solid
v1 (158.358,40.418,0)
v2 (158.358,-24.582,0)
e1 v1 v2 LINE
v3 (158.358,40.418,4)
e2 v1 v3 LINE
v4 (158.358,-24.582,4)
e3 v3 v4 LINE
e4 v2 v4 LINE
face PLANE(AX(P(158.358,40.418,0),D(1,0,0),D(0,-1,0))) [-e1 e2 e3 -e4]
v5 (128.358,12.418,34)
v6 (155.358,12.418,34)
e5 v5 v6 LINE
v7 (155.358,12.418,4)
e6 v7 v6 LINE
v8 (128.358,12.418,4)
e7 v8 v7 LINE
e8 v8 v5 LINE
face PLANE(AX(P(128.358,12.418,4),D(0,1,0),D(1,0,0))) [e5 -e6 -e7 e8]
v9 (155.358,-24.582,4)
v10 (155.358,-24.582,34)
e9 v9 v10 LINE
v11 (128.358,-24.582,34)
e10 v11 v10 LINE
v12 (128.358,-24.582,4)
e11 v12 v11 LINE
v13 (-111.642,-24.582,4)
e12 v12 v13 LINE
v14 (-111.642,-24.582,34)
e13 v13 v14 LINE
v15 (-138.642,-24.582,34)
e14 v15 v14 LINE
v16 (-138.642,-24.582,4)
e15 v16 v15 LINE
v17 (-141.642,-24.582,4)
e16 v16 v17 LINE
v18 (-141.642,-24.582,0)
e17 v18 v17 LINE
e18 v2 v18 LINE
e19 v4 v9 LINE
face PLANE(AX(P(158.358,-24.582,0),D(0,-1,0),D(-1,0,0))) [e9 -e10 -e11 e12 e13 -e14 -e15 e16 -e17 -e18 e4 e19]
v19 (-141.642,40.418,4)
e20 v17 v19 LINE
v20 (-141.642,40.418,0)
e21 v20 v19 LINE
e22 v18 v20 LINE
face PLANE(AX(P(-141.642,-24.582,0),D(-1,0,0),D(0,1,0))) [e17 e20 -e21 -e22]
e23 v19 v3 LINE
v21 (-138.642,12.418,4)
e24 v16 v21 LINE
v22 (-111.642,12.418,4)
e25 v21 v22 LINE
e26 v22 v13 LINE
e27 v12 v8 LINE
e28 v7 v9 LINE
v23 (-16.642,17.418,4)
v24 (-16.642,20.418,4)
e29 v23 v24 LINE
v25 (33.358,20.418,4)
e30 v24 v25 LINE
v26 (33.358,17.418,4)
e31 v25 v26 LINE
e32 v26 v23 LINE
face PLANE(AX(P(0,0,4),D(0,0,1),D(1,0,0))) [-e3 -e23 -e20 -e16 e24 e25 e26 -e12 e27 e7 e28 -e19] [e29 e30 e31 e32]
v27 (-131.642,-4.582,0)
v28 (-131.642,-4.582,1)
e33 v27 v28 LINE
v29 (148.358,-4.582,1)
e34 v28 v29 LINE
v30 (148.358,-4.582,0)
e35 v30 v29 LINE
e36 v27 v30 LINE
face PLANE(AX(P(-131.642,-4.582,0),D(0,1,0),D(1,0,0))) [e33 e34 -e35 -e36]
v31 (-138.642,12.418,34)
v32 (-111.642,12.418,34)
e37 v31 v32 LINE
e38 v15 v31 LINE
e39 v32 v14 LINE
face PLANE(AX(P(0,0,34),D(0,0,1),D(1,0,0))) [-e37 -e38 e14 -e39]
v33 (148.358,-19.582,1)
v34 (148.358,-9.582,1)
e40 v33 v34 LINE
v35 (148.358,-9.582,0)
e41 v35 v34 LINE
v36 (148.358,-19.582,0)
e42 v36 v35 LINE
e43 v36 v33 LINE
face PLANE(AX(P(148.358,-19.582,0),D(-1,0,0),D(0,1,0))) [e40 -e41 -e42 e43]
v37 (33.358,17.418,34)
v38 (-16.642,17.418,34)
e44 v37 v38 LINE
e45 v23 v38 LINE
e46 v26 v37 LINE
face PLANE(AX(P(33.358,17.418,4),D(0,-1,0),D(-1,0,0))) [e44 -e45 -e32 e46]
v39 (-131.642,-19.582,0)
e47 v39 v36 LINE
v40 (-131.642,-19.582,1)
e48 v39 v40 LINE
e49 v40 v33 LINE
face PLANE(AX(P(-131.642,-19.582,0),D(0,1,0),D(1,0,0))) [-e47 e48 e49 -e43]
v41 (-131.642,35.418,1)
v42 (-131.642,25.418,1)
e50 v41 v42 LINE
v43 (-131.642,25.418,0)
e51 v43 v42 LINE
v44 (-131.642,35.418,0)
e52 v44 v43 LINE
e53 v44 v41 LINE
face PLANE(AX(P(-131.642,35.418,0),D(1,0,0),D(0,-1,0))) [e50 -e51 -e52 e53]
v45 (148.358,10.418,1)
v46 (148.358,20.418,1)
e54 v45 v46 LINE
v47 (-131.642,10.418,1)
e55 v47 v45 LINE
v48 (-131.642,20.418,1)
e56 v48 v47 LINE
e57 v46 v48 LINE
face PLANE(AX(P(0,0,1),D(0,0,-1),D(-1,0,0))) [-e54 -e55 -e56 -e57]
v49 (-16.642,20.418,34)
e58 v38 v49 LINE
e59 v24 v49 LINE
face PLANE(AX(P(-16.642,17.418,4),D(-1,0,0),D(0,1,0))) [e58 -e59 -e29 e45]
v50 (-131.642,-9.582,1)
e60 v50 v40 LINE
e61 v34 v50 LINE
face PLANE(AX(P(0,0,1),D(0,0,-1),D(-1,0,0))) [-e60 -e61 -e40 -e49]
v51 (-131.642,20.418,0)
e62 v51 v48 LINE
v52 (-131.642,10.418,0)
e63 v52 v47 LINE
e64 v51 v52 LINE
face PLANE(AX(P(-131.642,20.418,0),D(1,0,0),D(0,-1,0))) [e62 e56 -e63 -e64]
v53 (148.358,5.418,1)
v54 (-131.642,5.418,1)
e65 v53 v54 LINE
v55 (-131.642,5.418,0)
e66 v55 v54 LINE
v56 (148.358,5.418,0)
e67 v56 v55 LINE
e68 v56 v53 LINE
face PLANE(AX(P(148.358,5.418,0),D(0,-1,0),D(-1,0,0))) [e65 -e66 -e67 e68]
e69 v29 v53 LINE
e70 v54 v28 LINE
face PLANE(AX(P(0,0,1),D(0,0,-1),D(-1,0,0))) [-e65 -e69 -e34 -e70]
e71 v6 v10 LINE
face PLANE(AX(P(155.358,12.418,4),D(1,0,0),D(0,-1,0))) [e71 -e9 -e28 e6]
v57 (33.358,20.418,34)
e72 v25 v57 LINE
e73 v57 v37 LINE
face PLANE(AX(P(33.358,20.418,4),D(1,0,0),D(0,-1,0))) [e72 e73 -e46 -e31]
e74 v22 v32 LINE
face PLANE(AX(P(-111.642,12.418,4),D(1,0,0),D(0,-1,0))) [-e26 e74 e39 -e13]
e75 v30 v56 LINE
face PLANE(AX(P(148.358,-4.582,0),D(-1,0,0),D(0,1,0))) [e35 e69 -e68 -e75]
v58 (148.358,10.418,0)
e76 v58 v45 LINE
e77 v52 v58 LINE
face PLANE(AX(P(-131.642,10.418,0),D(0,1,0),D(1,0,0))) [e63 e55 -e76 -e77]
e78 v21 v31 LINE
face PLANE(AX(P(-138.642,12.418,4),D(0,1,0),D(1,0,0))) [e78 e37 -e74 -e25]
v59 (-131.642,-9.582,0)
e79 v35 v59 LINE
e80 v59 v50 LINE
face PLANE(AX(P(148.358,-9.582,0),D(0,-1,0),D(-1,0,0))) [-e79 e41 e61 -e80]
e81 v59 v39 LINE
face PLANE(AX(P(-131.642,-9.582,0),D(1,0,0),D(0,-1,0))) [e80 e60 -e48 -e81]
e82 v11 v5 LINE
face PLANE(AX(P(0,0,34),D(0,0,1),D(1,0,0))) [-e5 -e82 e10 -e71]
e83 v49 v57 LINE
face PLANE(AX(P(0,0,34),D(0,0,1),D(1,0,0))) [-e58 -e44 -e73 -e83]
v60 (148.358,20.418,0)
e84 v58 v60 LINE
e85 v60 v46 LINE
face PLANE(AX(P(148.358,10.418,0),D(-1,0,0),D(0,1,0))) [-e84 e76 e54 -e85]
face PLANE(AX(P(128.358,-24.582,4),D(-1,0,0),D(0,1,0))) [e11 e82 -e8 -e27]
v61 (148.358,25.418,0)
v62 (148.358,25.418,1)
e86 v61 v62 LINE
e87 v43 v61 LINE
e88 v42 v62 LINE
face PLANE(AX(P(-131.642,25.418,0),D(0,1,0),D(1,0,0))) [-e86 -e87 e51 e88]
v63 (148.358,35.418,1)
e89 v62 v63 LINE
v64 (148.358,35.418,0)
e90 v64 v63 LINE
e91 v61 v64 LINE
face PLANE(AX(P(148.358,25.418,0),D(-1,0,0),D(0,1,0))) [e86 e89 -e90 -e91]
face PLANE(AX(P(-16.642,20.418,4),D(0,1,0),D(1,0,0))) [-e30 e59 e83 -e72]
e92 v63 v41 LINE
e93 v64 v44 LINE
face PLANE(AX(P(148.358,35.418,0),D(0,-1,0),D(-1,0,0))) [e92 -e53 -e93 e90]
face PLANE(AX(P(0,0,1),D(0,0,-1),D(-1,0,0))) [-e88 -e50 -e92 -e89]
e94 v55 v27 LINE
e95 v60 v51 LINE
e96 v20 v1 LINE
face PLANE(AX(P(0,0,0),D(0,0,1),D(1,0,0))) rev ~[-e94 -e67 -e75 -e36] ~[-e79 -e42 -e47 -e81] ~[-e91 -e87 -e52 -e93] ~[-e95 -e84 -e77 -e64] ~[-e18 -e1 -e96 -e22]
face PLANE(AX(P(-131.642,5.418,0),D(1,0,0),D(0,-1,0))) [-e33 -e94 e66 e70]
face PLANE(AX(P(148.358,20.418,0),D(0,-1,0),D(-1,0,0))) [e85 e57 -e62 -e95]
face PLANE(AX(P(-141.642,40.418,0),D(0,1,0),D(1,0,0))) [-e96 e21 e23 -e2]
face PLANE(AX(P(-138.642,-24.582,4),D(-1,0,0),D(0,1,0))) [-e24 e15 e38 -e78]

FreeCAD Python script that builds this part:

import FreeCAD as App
import Part
import Sketcher

V = App.Vector


def add_polygon(sketch, points):
    """Adds a closed chain of lines whose ends are joined by coincident constraints."""
    first, n = sketch.GeometryCount, len(points)
    for a, b in zip(points, points[1:] + points[:1]):
        sketch.addGeometry(Part.LineSegment(App.Vector(*a, 0), App.Vector(*b, 0)), False)
    for i in range(n):
        sketch.addConstraint(Sketcher.Constraint("Coincident", first + i, 2, first + (i + 1) % n, 1))

doc = App.newDocument("Part")
params = doc.addObject("Spreadsheet::Sheet", "Params")
for row, (alias, value) in enumerate([
    ("sketch1_width", "300 mm"),
    ("sketch1_height", "65 mm"),
    ("pad1_length", "4 mm"),
    ("sketch2_width", "27 mm"),
    ("sketch2_height", "37 mm"),
    ("pad2_length", "30 mm"),
    ("sketch3_width", "280 mm"),
    ("sketch3_height", "10 mm"),
    ("pocket1_length", "1 mm"),
    ("sketch4_width", "50 mm"),
    ("sketch4_height", "3 mm"),
    ("pad3_length", "30 mm"),
], start=1):
    params.set(f"A{row}", alias)
    params.set(f"B{row}", "=" + value)
    params.setAlias(f"B{row}", alias)

body = doc.addObject("PartDesign::Body", "Body")

# Sketch on XY plane
sketch1 = body.newObject("Sketcher::SketchObject", "Sketch")
sketch1.AttachmentSupport = (doc.getObject("XY_Plane"), [""])
sketch1.MapMode = "FlatFace"
add_polygon(sketch1, [(158.358, 40.418), (-141.642, 40.418), (-141.642, -24.582), (158.358, -24.582)])  # lines 0-3
sketch1.addConstraint([
    Sketcher.Constraint("Horizontal", 0),
    Sketcher.Constraint("Vertical", 1),
    Sketcher.Constraint("Horizontal", 2),
    Sketcher.Constraint("Vertical", 3),
    Sketcher.Constraint("DistanceX", 0, 2, 0, 1, 300.0),
    Sketcher.Constraint("DistanceY", 1, 2, 1, 1, 65.0),
    Sketcher.Constraint("DistanceX", 0, 2, -1, 1, 141.642),
    Sketcher.Constraint("DistanceY", -1, 1, 0, 2, 40.418),
])
sketch1.setExpression("Constraints[8]", "Params.sketch1_width")
sketch1.setExpression("Constraints[9]", "Params.sketch1_height")
pad1 = body.newObject("PartDesign::Pad", "Pad")
pad1.Profile = sketch1
pad1.setExpression("Length", "Params.pad1_length")

# Sketch on XY plane
sketch2 = body.newObject("Sketcher::SketchObject", "Sketch001")
sketch2.AttachmentSupport = (doc.getObject("XY_Plane"), [""])
sketch2.MapMode = "FlatFace"
sketch2.AttachmentOffset = App.Placement(V(0, 0, 4), App.Rotation())
add_polygon(sketch2, [(-138.642, 12.418), (-138.642, -24.582), (-111.642, -24.582), (-111.642, 12.418)])  # lines 0-3
add_polygon(sketch2, [(128.358, 12.418), (128.358, -24.582), (155.358, -24.582), (155.358, 12.418)])  # lines 4-7
sketch2.addConstraint([
    Sketcher.Constraint("Vertical", 0),
    Sketcher.Constraint("Horizontal", 1),
    Sketcher.Constraint("Vertical", 2),
    Sketcher.Constraint("Horizontal", 3),
    Sketcher.Constraint("Vertical", 4),
    Sketcher.Constraint("Horizontal", 5),
    Sketcher.Constraint("Vertical", 6),
    Sketcher.Constraint("Horizontal", 7),
    Sketcher.Constraint("Horizontal", 1, 2, 4, 2),
    Sketcher.Constraint("Horizontal", 3, 2, 6, 2),
    Sketcher.Constraint("Equal", 3, 5),
    Sketcher.Constraint("DistanceX", 1, 1, 1, 2, 27.0),
    Sketcher.Constraint("DistanceY", 0, 2, 0, 1, 37.0),
    Sketcher.Constraint("DistanceX", 1, 2, 4, 2, 240.0),
    Sketcher.Constraint("DistanceX", 0, 2, -1, 1, 138.642),
    Sketcher.Constraint("DistanceY", 0, 2, -1, 1, 24.582),
])
sketch2.setExpression("Constraints[19]", "Params.sketch2_width")
sketch2.setExpression("Constraints[20]", "Params.sketch2_height")
pad2 = body.newObject("PartDesign::Pad", "Pad001")
pad2.Profile = sketch2
pad2.setExpression("Length", "Params.pad2_length")

# Sketch on XY plane
sketch3 = body.newObject("Sketcher::SketchObject", "Sketch002")
sketch3.AttachmentSupport = (doc.getObject("XY_Plane"), [""])
sketch3.MapMode = "FlatFace"
add_polygon(sketch3, [(-131.642, 35.418), (148.358, 35.418), (148.358, 25.418), (-131.642, 25.418)])  # lines 0-3
add_polygon(sketch3, [(-131.642, 20.418), (148.358, 20.418), (148.358, 10.418), (-131.642, 10.418)])  # lines 4-7
add_polygon(sketch3, [(-131.642, 5.418), (148.358, 5.418), (148.358, -4.582), (-131.642, -4.582)])  # lines 8-11
add_polygon(sketch3, [(-131.642, -9.582), (148.358, -9.582), (148.358, -19.582), (-131.642, -19.582)])  # lines 12-15
sketch3.addConstraint([
    Sketcher.Constraint("Horizontal", 0),
    Sketcher.Constraint("Vertical", 1),
    Sketcher.Constraint("Horizontal", 2),
    Sketcher.Constraint("Vertical", 3),
    Sketcher.Constraint("Horizontal", 4),
    Sketcher.Constraint("Vertical", 5),
    Sketcher.Constraint("Horizontal", 6),
    Sketcher.Constraint("Vertical", 7),
    Sketcher.Constraint("Horizontal", 8),
    Sketcher.Constraint("Vertical", 9),
    Sketcher.Constraint("Horizontal", 10),
    Sketcher.Constraint("Vertical", 11),
    Sketcher.Constraint("Horizontal", 12),
    Sketcher.Constraint("Vertical", 13),
    Sketcher.Constraint("Horizontal", 14),
    Sketcher.Constraint("Vertical", 15),
    Sketcher.Constraint("Vertical", 1, 2, 4, 2),
    Sketcher.Constraint("Vertical", 3, 2, 6, 2),
    Sketcher.Constraint("Vertical", 5, 2, 8, 2),
    Sketcher.Constraint("Vertical", 7, 2, 10, 2),
    Sketcher.Constraint("Vertical", 9, 2, 12, 2),
    Sketcher.Constraint("Vertical", 11, 2, 14, 2),
    Sketcher.Constraint("Equal", 3, 5),
    Sketcher.Constraint("Equal", 7, 9),
    Sketcher.Constraint("Equal", 11, 13),
    Sketcher.Constraint("DistanceX", 0, 1, 0, 2, 280.0),
    Sketcher.Constraint("DistanceY", 1, 2, 1, 1, 10.0),
    Sketcher.Constraint("DistanceY", 4, 2, 1, 2, 5.0),
    Sketcher.Constraint("DistanceY", 8, 2, 5, 2, 5.0),
    Sketcher.Constraint("DistanceY", 12, 2, 9, 2, 5.0),
    Sketcher.Constraint("DistanceX", -1, 1, 0, 2, 148.358),
    Sketcher.Constraint("DistanceY", -1, 1, 0, 2, 35.418),
])
sketch3.setExpression("Constraints[41]", "Params.sketch3_width")
sketch3.setExpression("Constraints[42]", "Params.sketch3_height")
pocket1 = body.newObject("PartDesign::Pocket", "Pocket")
pocket1.Profile = sketch3
pocket1.setExpression("Length", "Params.pocket1_length")
pocket1.Reversed = True

# Sketch on XY plane
sketch4 = body.newObject("Sketcher::SketchObject", "Sketch003")
sketch4.AttachmentSupport = (doc.getObject("XY_Plane"), [""])
sketch4.MapMode = "FlatFace"
sketch4.AttachmentOffset = App.Placement(V(0, 0, 4), App.Rotation())
add_polygon(sketch4, [(33.358, 20.418), (-16.642, 20.418), (-16.642, 17.418), (33.358, 17.418)])  # lines 0-3
sketch4.addConstraint([
    Sketcher.Constraint("Horizontal", 0),
    Sketcher.Constraint("Vertical", 1),
    Sketcher.Constraint("Horizontal", 2),
    Sketcher.Constraint("Vertical", 3),
    Sketcher.Constraint("DistanceX", 0, 2, 0, 1, 50.0),
    Sketcher.Constraint("DistanceY", 1, 2, 1, 1, 3.0),
    Sketcher.Constraint("DistanceX", 0, 2, -1, 1, 16.642),
    Sketcher.Constraint("DistanceY", -1, 1, 0, 2, 20.418),
])
sketch4.setExpression("Constraints[8]", "Params.sketch4_width")
sketch4.setExpression("Constraints[9]", "Params.sketch4_height")
pad3 = body.newObject("PartDesign::Pad", "Pad002")
pad3.Profile = sketch4
pad3.setExpression("Length", "Params.pad3_length")

doc.recompute()
